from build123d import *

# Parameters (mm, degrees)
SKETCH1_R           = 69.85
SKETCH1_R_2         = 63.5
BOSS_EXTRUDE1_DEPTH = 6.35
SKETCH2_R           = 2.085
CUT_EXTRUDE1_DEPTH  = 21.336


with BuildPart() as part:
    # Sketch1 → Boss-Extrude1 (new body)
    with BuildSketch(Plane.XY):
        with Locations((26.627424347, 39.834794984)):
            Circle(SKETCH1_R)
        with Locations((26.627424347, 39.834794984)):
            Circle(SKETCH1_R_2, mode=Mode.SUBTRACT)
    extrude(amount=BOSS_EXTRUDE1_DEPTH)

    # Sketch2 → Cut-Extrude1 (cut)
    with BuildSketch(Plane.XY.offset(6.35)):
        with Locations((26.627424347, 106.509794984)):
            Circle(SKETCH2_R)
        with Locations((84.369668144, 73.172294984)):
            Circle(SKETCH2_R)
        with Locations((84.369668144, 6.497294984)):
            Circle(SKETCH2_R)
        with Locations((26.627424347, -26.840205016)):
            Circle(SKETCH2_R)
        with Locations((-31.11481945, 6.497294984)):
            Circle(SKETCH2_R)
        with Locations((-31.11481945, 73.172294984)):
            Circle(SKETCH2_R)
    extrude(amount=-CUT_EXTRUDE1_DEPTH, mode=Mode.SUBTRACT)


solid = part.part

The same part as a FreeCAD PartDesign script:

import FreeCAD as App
import Part
import Sketcher

V = App.Vector
Q = App.Units.Quantity

doc = App.newDocument("Part")
body = doc.addObject("PartDesign::Body", "Body")

# Sketch on XY plane
sketch1 = doc.addObject("Sketcher::SketchObject", "Sketch")
body.addObject(sketch1)
sketch1.AttachmentSupport = (doc.XY_Plane, [""])
sketch1.MapMode = "FlatFace"
sketch1.addGeometry(Part.Circle(V(27, 40, 0), V(0, 0, 1), 70), False)
sketch1.addGeometry(Part.Circle(V(27, 40, 0), V(0, 0, 1), 64), False)
sketch1.addConstraint(Sketcher.Constraint("Coincident", 1, 3, 0, 3))
sketch1.addConstraint(Sketcher.Constraint("Diameter", 1, Q("5 in")))
sketch1.addConstraint(Sketcher.Constraint("Diameter", 0, Q("5.5 in")))
sketch1.addConstraint(Sketcher.Constraint("DistanceX", -1, 1, 0, 3, Q("26.627424 mm")))
sketch1.addConstraint(Sketcher.Constraint("DistanceY", -1, 1, 0, 3, Q("39.834795 mm")))
pad1 = doc.addObject("PartDesign::Pad", "Pad")
body.addObject(pad1)
pad1.Profile = sketch1
pad1.Length = Q("0.25 in")

# Sketch on XY plane
sketch2 = doc.addObject("Sketcher::SketchObject", "Sketch001")
body.addObject(sketch2)
sketch2.AttachmentSupport = (doc.XY_Plane, [""])
sketch2.MapMode = "FlatFace"
sketch2.AttachmentOffset = App.Placement(V(0, 0, 0.25 * 25.4), App.Rotation())
sketch2.addGeometry(Part.Circle(V(26.6, 106.5, 0), V(0, 0, 1), 2.1), False)
sketch2.addGeometry(Part.Circle(V(84.4, 73.2, 0), V(0, 0, 1), 2.1), False)
sketch2.addGeometry(Part.Circle(V(84.4, 6.5, 0), V(0, 0, 1), 2.1), False)
sketch2.addGeometry(Part.Circle(V(26.6, -26.8, 0), V(0, 0, 1), 2.1), False)
sketch2.addGeometry(Part.Circle(V(-31.1, 6.5, 0), V(0, 0, 1), 2.1), False)
sketch2.addGeometry(Part.Circle(V(-31.1, 73.2, 0), V(0, 0, 1), 2.1), False)
sketch2.addConstraint(Sketcher.Constraint("Equal", 0, 1))
sketch2.addConstraint(Sketcher.Constraint("Equal", 1, 2))
sketch2.addConstraint(Sketcher.Constraint("Equal", 2, 3))
sketch2.addConstraint(Sketcher.Constraint("Equal", 3, 4))
sketch2.addConstraint(Sketcher.Constraint("Equal", 4, 5))
sketch2.addConstraint(Sketcher.Constraint("Horizontal", 2, 3, 4, 3))
sketch2.addConstraint(Sketcher.Constraint("Horizontal", 1, 3, 5, 3))
sketch2.addConstraint(Sketcher.Constraint("Vertical", 1, 3, 2, 3))
sketch2.addConstraint(Sketcher.Constraint("Vertical", 0, 3, 3, 3))
sketch2.addConstraint(Sketcher.Constraint("Vertical", 4, 3, 5, 3))
sketch2.addConstraint(Sketcher.Constraint("Diameter", 0, Q("4.17 mm")))
sketch2.addConstraint(Sketcher.Constraint("DistanceY", 3, 3, 0, 3, Q("5.25 in")))
sketch2.addConstraint(Sketcher.Constraint("DistanceY", 1, 3, 0, 3, Q("1.3125 in")))
sketch2.addConstraint(Sketcher.Constraint("DistanceY", 2, 3, 1, 3, Q("2.625 in")))
sketch2.addConstraint(Sketcher.Constraint("DistanceX", -1, 1, 1, 3, Q("84.369668 mm")))
sketch2.addConstraint(Sketcher.Constraint("DistanceX", 4, 3, -1, 1, Q("31.114819 mm")))
sketch2.addConstraint(Sketcher.Constraint("DistanceX", -1, 1, 0, 3, Q("26.627424 mm")))
sketch2.addConstraint(Sketcher.Constraint("DistanceY", -1, 1, 0, 3, Q("106.509795 mm")))
pocket1 = doc.addObject("PartDesign::Pocket", "Pocket")
body.addObject(pocket1)
pocket1.Profile = sketch2
pocket1.Length = Q("0.84 in")

doc.recompute()
